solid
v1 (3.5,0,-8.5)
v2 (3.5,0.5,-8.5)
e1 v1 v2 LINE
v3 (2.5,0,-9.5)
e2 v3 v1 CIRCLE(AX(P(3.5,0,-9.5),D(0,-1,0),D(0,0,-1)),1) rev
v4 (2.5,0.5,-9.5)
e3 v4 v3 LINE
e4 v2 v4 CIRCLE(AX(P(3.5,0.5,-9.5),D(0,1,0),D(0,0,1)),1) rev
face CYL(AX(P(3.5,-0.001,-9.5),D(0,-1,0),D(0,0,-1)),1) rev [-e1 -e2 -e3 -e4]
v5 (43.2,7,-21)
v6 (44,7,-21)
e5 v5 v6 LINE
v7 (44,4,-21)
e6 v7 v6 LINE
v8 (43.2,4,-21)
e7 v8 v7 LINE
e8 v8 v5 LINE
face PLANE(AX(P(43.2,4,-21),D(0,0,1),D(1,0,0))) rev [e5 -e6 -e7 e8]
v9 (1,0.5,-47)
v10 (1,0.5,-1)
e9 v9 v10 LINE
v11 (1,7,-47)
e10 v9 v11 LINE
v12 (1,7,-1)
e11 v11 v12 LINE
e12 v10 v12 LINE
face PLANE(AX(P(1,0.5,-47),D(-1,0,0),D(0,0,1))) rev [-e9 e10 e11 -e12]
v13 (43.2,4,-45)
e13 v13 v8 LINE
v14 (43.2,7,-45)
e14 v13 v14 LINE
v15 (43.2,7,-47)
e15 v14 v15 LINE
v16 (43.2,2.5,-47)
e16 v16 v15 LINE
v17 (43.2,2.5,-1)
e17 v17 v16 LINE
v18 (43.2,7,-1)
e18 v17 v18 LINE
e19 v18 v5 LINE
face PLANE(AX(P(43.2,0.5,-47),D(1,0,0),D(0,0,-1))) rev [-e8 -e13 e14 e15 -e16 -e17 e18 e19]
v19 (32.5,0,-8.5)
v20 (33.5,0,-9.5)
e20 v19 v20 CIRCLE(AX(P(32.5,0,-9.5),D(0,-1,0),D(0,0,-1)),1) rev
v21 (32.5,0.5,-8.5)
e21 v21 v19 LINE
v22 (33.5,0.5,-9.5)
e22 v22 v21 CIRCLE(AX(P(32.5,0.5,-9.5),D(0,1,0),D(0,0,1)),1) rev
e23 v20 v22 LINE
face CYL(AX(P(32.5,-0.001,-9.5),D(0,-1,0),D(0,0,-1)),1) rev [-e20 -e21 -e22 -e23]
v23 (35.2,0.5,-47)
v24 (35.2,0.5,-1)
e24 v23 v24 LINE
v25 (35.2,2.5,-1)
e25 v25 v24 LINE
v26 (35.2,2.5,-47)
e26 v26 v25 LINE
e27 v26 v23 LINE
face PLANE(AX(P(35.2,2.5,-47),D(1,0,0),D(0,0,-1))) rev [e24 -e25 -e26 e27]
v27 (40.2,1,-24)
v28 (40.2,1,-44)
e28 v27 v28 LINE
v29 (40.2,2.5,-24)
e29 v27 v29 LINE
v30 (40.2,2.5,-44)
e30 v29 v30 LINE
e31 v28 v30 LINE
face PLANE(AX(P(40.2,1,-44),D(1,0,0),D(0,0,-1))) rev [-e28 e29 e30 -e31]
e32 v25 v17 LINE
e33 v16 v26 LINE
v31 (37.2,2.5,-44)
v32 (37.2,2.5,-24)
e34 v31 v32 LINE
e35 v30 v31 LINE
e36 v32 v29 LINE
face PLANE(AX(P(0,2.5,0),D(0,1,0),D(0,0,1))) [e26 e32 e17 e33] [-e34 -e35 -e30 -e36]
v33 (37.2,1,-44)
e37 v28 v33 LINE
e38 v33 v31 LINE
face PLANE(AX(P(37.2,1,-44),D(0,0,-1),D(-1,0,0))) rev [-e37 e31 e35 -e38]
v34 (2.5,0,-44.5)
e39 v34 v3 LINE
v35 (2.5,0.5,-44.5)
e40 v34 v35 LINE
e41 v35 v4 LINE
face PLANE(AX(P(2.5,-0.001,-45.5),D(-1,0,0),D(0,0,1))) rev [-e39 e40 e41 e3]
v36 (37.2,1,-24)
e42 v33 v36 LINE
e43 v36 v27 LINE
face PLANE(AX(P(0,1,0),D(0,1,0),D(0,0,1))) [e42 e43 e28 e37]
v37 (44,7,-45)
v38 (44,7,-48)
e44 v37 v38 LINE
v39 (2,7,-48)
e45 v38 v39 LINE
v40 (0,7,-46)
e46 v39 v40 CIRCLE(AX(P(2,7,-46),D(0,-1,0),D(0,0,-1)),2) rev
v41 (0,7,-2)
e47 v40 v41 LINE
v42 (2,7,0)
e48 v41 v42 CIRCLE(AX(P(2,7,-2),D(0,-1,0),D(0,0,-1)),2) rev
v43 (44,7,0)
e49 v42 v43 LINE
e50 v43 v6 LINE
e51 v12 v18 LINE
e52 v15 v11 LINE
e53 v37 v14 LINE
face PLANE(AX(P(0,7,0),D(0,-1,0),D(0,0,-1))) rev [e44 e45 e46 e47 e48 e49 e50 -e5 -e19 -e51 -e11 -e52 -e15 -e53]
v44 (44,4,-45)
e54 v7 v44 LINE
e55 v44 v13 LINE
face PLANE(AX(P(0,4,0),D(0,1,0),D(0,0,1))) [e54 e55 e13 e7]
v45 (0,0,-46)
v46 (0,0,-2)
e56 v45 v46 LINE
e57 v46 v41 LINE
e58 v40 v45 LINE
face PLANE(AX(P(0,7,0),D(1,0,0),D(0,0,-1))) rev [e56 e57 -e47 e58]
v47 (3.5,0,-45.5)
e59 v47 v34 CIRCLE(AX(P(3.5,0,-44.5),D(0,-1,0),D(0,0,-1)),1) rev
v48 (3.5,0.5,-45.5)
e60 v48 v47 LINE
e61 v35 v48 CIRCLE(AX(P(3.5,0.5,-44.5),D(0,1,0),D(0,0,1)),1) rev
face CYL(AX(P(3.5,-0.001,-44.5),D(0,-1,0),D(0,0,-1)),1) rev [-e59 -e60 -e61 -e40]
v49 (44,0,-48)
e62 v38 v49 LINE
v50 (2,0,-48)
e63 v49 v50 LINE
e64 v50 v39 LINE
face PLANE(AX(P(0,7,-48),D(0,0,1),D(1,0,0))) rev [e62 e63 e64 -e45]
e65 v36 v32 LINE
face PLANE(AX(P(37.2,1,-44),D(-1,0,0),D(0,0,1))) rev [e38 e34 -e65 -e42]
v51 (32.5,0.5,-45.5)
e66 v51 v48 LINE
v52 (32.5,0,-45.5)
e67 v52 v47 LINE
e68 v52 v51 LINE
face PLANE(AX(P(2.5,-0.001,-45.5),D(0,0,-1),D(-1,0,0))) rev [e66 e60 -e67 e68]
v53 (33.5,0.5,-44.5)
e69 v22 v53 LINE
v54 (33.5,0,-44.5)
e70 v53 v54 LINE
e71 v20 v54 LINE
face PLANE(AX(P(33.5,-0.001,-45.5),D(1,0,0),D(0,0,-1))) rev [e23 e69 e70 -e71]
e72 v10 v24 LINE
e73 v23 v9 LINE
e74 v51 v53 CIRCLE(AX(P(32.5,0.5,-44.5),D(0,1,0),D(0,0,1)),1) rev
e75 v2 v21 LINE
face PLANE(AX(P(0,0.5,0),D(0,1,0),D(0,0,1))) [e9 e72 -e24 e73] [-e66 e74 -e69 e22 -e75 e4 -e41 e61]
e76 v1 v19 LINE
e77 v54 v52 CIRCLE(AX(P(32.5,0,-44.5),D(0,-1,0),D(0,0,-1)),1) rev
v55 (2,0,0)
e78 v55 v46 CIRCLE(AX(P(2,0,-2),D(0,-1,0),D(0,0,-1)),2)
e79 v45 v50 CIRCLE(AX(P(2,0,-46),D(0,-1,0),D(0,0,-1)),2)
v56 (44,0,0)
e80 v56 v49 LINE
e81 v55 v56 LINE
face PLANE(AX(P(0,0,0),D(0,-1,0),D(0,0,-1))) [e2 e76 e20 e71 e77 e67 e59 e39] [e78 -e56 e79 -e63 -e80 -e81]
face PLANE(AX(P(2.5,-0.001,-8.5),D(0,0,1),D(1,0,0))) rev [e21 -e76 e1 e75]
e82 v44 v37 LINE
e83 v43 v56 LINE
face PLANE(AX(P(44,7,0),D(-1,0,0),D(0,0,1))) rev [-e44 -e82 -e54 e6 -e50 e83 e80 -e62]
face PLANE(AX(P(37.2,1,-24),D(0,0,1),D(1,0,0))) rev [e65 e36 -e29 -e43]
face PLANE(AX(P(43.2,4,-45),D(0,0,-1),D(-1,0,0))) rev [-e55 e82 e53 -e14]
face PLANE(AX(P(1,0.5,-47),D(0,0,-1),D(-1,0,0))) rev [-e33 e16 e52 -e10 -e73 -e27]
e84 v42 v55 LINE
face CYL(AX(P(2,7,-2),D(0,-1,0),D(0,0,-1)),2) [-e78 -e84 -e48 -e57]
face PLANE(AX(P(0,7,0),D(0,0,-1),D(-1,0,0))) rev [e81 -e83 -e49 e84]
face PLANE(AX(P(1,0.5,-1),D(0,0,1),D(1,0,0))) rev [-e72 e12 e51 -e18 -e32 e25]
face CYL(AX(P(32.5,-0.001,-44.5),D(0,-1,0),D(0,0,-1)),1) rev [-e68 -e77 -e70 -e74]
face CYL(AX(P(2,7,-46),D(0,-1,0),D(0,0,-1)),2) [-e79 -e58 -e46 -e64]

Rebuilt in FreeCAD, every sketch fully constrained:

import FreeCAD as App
import Part
import Sketcher
from FreeCAD import Vector
Q = App.Units.Quantity


def edges_at(feature, points):
    """Names of the edges that pass closest to the given points."""
    edges = feature.Shape.Edges
    near = lambda p: min(range(len(edges)), key=lambda i: edges[i].distToShape(Part.Vertex(*p))[0])
    return sorted({f"Edge{near(p) + 1}" for p in points})

doc = App.newDocument("Part")
params = doc.addObject("Spreadsheet::Sheet", "Params")
for row, (alias, value) in enumerate([
    ("sketch1_width", "44 mm"),
    ("sketch1_height", "48 mm"),
    ("pad1_length", "7 mm"),
    ("sketch2_height", "46 mm"),
    ("sketch2_width", "42.2 mm"),
    ("pocket1_length", "6.5 mm"),
    ("sketch3_width", "31 mm"),
    ("sketch3_height", "37 mm"),
    ("sketch4_width", "8 mm"),
    ("sketch4_height", "46 mm"),
    ("pad2_length", "2 mm"),
    ("sketch5_height", "24 mm"),
    ("sketch5_width", "0.8 mm"),
    ("pocket3_length", "3 mm"),
    ("fillet_radius", "2 mm"),
    ("fillet2_radius", "1 mm"),
    ("sketch6_width", "3 mm"),
    ("sketch6_height", "20 mm"),
    ("pocket4_length", "1.5 mm"),
], start=1):
    params.set(f"A{row}", alias)
    params.set(f"B{row}", "=" + value)
    params.setAlias(f"B{row}", alias)

body = doc.addObject("PartDesign::Body", "Body")

# Sketch on XZ plane
sketch1 = body.newObject("Sketcher::SketchObject", "Sketch")
sketch1.AttachmentSupport = (doc.getObject("XZ_Plane"), [""])
sketch1.MapMode = "FlatFace"
sketch1.addGeometry([
    Part.LineSegment(Vector(0, -48, 0), Vector(0, 0, 0)),
    Part.LineSegment(Vector(0, 0, 0), Vector(44, 0, 0)),
    Part.LineSegment(Vector(44, 0, 0), Vector(44, -48, 0)),
    Part.LineSegment(Vector(44, -48, 0), Vector(0, -48, 0)),
], False)
sketch1.addConstraint([
    Sketcher.Constraint("Coincident", 0, 2, 1, 1),
    Sketcher.Constraint("Coincident", 1, 2, 2, 1),
    Sketcher.Constraint("Coincident", 2, 2, 3, 1),
    Sketcher.Constraint("Coincident", 3, 2, 0, 1),
    Sketcher.Constraint("Vertical", 0),
    Sketcher.Constraint("Horizontal", 1),
    Sketcher.Constraint("Vertical", 2),
    Sketcher.Constraint("Horizontal", 3),
    Sketcher.Constraint("Coincident", 0, 2, -1, 1),
    Sketcher.Constraint("DistanceX", 1, 1, 1, 2, Q("44 mm")),
    Sketcher.Constraint("DistanceY", 0, 1, 0, 2, Q("48 mm")),
])
sketch1.setExpression("Constraints[9]", "Params.sketch1_width")
sketch1.setExpression("Constraints[10]", "Params.sketch1_height")
pad1 = body.newObject("PartDesign::Pad", "Pad")
pad1.Profile = sketch1
pad1.setExpression("Length", "Params.pad1_length")
pad1.Reversed = True

# Sketch on XZ plane
sketch2 = body.newObject("Sketcher::SketchObject", "Sketch001")
sketch2.AttachmentSupport = (doc.getObject("XZ_Plane"), [""])
sketch2.MapMode = "FlatFace"
sketch2.AttachmentOffset = App.Placement(Vector(0, 0, -7), App.Rotation())
sketch2.addGeometry([
    Part.LineSegment(Vector(1, -47, 0), Vector(1, -1, 0)),
    Part.LineSegment(Vector(1, -1, 0), Vector(43, -1, 0)),
    Part.LineSegment(Vector(43, -1, 0), Vector(43, -47, 0)),
    Part.LineSegment(Vector(43, -47, 0), Vector(1, -47, 0)),
], False)
sketch2.addConstraint([
    Sketcher.Constraint("Coincident", 0, 2, 1, 1),
    Sketcher.Constraint("Coincident", 1, 2, 2, 1),
    Sketcher.Constraint("Coincident", 2, 2, 3, 1),
    Sketcher.Constraint("Coincident", 3, 2, 0, 1),
    Sketcher.Constraint("Vertical", 0),
    Sketcher.Constraint("Horizontal", 1),
    Sketcher.Constraint("Vertical", 2),
    Sketcher.Constraint("Horizontal", 3),
    Sketcher.Constraint("DistanceY", 0, 1, 0, 2, Q("46 mm")),
    Sketcher.Constraint("DistanceX", 1, 1, 1, 2, Q("42.2 mm")),
    Sketcher.Constraint("DistanceX", -1, 1, 0, 2, Q("1 mm")),
    Sketcher.Constraint("DistanceY", 0, 2, -1, 1, Q("1 mm")),
])
sketch2.setExpression("Constraints[8]", "Params.sketch2_height")
sketch2.setExpression("Constraints[9]", "Params.sketch2_width")
pocket1 = body.newObject("PartDesign::Pocket", "Pocket")
pocket1.Profile = sketch2
pocket1.setExpression("Length", "Params.pocket1_length")
pocket1.Reversed = True

# Sketch on XZ plane
sketch3 = body.newObject("Sketcher::SketchObject", "Sketch002")
sketch3.AttachmentSupport = (doc.getObject("XZ_Plane"), [""])
sketch3.MapMode = "FlatFace"
sketch3.AttachmentOffset = App.Placement(Vector(0, 0, -0.5), App.Rotation())
sketch3.addGeometry([
    Part.LineSegment(Vector(2, -46, 0), Vector(2, -8, 0)),
    Part.LineSegment(Vector(2, -8, 0), Vector(34, -8, 0)),
    Part.LineSegment(Vector(34, -8, 0), Vector(34, -46, 0)),
    Part.LineSegment(Vector(34, -46, 0), Vector(2, -46, 0)),
], False)
sketch3.addConstraint([
    Sketcher.Constraint("Coincident", 0, 2, 1, 1),
    Sketcher.Constraint("Coincident", 1, 2, 2, 1),
    Sketcher.Constraint("Coincident", 2, 2, 3, 1),
    Sketcher.Constraint("Coincident", 3, 2, 0, 1),
    Sketcher.Constraint("Vertical", 0),
    Sketcher.Constraint("Horizontal", 1),
    Sketcher.Constraint("Vertical", 2),
    Sketcher.Constraint("Horizontal", 3),
    Sketcher.Constraint("DistanceX", 1, 1, 1, 2, Q("31 mm")),
    Sketcher.Constraint("DistanceY", 0, 1, 0, 2, Q("37 mm")),
    Sketcher.Constraint("DistanceX", -1, 1, 0, 2, Q("2.5 mm")),
    Sketcher.Constraint("DistanceY", 0, 2, -1, 1, Q("8.5 mm")),
])
sketch3.setExpression("Constraints[8]", "Params.sketch3_width")
sketch3.setExpression("Constraints[9]", "Params.sketch3_height")
pocket2 = body.newObject("PartDesign::Pocket", "Pocket001")
pocket2.Profile = sketch3
pocket2.Type = "UpToFirst"
pocket2.Reversed = True

# Sketch on XZ plane
sketch4 = body.newObject("Sketcher::SketchObject", "Sketch003")
sketch4.AttachmentSupport = (doc.getObject("XZ_Plane"), [""])
sketch4.MapMode = "FlatFace"
sketch4.AttachmentOffset = App.Placement(Vector(0, 0, -0.5), App.Rotation())
sketch4.addGeometry([
    Part.LineSegment(Vector(35, -47, 0), Vector(35, -1, 0)),
    Part.LineSegment(Vector(35, -1, 0), Vector(43, -1, 0)),
    Part.LineSegment(Vector(43, -1, 0), Vector(43, -47, 0)),
    Part.LineSegment(Vector(43, -47, 0), Vector(35, -47, 0)),
], False)
sketch4.addConstraint([
    Sketcher.Constraint("Coincident", 0, 2, 1, 1),
    Sketcher.Constraint("Coincident", 1, 2, 2, 1),
    Sketcher.Constraint("Coincident", 2, 2, 3, 1),
    Sketcher.Constraint("Coincident", 3, 2, 0, 1),
    Sketcher.Constraint("Vertical", 0),
    Sketcher.Constraint("Horizontal", 1),
    Sketcher.Constraint("Vertical", 2),
    Sketcher.Constraint("Horizontal", 3),
    Sketcher.Constraint("DistanceX", 1, 1, 1, 2, Q("8 mm")),
    Sketcher.Constraint("DistanceY", 0, 1, 0, 2, Q("46 mm")),
    Sketcher.Constraint("DistanceY", 0, 2, -1, 1, Q("1 mm")),
    Sketcher.Constraint("DistanceX", -1, 1, 0, 2, Q("35.2 mm")),
])
sketch4.setExpression("Constraints[8]", "Params.sketch4_width")
sketch4.setExpression("Constraints[9]", "Params.sketch4_height")
pad2 = body.newObject("PartDesign::Pad", "Pad001")
pad2.Profile = sketch4
pad2.setExpression("Length", "Params.pad2_length")
pad2.Reversed = True

# Sketch on XZ plane
sketch5 = body.newObject("Sketcher::SketchObject", "Sketch004")
sketch5.AttachmentSupport = (doc.getObject("XZ_Plane"), [""])
sketch5.MapMode = "FlatFace"
sketch5.AttachmentOffset = App.Placement(Vector(0, 0, -7), App.Rotation())
sketch5.addGeometry([
    Part.LineSegment(Vector(43.2, -45, 0), Vector(43.2, -21, 0)),
    Part.LineSegment(Vector(43.2, -21, 0), Vector(44, -21, 0)),
    Part.LineSegment(Vector(44, -21, 0), Vector(44, -45, 0)),
    Part.LineSegment(Vector(44, -45, 0), Vector(43.2, -45, 0)),
], False)
sketch5.addConstraint([
    Sketcher.Constraint("Coincident", 0, 2, 1, 1),
    Sketcher.Constraint("Coincident", 1, 2, 2, 1),
    Sketcher.Constraint("Coincident", 2, 2, 3, 1),
    Sketcher.Constraint("Coincident", 3, 2, 0, 1),
    Sketcher.Constraint("Vertical", 0),
    Sketcher.Constraint("Horizontal", 1),
    Sketcher.Constraint("Vertical", 2),
    Sketcher.Constraint("Horizontal", 3),
    Sketcher.Constraint("DistanceY", 0, 1, 0, 2, Q("24 mm")),
    Sketcher.Constraint("DistanceX", 1, 1, 1, 2, Q("0.8 mm")),
    Sketcher.Constraint("DistanceY", 0, 2, -1, 1, Q("21 mm")),
    Sketcher.Constraint("DistanceX", -1, 1, 1, 2, Q("44 mm")),
])
sketch5.setExpression("Constraints[8]", "Params.sketch5_height")
sketch5.setExpression("Constraints[9]", "Params.sketch5_width")
pocket3 = body.newObject("PartDesign::Pocket", "Pocket002")
pocket3.Profile = sketch5
pocket3.setExpression("Length", "Params.pocket3_length")
pocket3.Reversed = True
doc.recompute()

fillet = body.newObject("PartDesign::Fillet", "Fillet")
fillet.Base = (pocket3, edges_at(pocket3, [(0, 3.5, -48), (0, 3.5, 0)]))
fillet.setExpression("Radius", "Params.fillet_radius")
doc.recompute()

fillet2 = body.newObject("PartDesign::Fillet", "Fillet001")
fillet2.Base = (fillet, edges_at(fillet, [
    (2.5, 0.25, -8.5),
    (2.5, 0.25, -45.5),
    (33.5, 0.25, -45.5),
    (33.5, 0.25, -8.5),
]))
fillet2.setExpression("Radius", "Params.fillet2_radius")

# Sketch on XZ plane
sketch6 = body.newObject("Sketcher::SketchObject", "Sketch005")
sketch6.AttachmentSupport = (doc.getObject("XZ_Plane"), [""])
sketch6.MapMode = "FlatFace"
sketch6.AttachmentOffset = App.Placement(Vector(0, 0, -2.5), App.Rotation())
sketch6.addGeometry([
    Part.LineSegment(Vector(37.2, -44, 0), Vector(37.2, -24, 0)),
    Part.LineSegment(Vector(37.2, -24, 0), Vector(40.2, -24, 0)),
    Part.LineSegment(Vector(40.2, -24, 0), Vector(40.2, -44, 0)),
    Part.LineSegment(Vector(40.2, -44, 0), Vector(37.2, -44, 0)),
], False)
sketch6.addConstraint([
    Sketcher.Constraint("Coincident", 0, 2, 1, 1),
    Sketcher.Constraint("Coincident", 1, 2, 2, 1),
    Sketcher.Constraint("Coincident", 2, 2, 3, 1),
    Sketcher.Constraint("Coincident", 3, 2, 0, 1),
    Sketcher.Constraint("Vertical", 0),
    Sketcher.Constraint("Horizontal", 1),
    Sketcher.Constraint("Vertical", 2),
    Sketcher.Constraint("Horizontal", 3),
    Sketcher.Constraint("DistanceX", 1, 1, 1, 2, Q("3 mm")),
    Sketcher.Constraint("DistanceY", 0, 1, 0, 2, Q("20 mm")),
    Sketcher.Constraint("DistanceY", 0, 2, -1, 1, Q("24 mm")),
    Sketcher.Constraint("DistanceX", -1, 1, 0, 2, Q("37.2 mm")),
])
sketch6.setExpression("Constraints[8]", "Params.sketch6_width")
sketch6.setExpression("Constraints[9]", "Params.sketch6_height")
pocket4 = body.newObject("PartDesign::Pocket", "Pocket003")
pocket4.Profile = sketch6
pocket4.setExpression("Length", "Params.pocket4_length")
pocket4.Reversed = True

doc.recompute()
